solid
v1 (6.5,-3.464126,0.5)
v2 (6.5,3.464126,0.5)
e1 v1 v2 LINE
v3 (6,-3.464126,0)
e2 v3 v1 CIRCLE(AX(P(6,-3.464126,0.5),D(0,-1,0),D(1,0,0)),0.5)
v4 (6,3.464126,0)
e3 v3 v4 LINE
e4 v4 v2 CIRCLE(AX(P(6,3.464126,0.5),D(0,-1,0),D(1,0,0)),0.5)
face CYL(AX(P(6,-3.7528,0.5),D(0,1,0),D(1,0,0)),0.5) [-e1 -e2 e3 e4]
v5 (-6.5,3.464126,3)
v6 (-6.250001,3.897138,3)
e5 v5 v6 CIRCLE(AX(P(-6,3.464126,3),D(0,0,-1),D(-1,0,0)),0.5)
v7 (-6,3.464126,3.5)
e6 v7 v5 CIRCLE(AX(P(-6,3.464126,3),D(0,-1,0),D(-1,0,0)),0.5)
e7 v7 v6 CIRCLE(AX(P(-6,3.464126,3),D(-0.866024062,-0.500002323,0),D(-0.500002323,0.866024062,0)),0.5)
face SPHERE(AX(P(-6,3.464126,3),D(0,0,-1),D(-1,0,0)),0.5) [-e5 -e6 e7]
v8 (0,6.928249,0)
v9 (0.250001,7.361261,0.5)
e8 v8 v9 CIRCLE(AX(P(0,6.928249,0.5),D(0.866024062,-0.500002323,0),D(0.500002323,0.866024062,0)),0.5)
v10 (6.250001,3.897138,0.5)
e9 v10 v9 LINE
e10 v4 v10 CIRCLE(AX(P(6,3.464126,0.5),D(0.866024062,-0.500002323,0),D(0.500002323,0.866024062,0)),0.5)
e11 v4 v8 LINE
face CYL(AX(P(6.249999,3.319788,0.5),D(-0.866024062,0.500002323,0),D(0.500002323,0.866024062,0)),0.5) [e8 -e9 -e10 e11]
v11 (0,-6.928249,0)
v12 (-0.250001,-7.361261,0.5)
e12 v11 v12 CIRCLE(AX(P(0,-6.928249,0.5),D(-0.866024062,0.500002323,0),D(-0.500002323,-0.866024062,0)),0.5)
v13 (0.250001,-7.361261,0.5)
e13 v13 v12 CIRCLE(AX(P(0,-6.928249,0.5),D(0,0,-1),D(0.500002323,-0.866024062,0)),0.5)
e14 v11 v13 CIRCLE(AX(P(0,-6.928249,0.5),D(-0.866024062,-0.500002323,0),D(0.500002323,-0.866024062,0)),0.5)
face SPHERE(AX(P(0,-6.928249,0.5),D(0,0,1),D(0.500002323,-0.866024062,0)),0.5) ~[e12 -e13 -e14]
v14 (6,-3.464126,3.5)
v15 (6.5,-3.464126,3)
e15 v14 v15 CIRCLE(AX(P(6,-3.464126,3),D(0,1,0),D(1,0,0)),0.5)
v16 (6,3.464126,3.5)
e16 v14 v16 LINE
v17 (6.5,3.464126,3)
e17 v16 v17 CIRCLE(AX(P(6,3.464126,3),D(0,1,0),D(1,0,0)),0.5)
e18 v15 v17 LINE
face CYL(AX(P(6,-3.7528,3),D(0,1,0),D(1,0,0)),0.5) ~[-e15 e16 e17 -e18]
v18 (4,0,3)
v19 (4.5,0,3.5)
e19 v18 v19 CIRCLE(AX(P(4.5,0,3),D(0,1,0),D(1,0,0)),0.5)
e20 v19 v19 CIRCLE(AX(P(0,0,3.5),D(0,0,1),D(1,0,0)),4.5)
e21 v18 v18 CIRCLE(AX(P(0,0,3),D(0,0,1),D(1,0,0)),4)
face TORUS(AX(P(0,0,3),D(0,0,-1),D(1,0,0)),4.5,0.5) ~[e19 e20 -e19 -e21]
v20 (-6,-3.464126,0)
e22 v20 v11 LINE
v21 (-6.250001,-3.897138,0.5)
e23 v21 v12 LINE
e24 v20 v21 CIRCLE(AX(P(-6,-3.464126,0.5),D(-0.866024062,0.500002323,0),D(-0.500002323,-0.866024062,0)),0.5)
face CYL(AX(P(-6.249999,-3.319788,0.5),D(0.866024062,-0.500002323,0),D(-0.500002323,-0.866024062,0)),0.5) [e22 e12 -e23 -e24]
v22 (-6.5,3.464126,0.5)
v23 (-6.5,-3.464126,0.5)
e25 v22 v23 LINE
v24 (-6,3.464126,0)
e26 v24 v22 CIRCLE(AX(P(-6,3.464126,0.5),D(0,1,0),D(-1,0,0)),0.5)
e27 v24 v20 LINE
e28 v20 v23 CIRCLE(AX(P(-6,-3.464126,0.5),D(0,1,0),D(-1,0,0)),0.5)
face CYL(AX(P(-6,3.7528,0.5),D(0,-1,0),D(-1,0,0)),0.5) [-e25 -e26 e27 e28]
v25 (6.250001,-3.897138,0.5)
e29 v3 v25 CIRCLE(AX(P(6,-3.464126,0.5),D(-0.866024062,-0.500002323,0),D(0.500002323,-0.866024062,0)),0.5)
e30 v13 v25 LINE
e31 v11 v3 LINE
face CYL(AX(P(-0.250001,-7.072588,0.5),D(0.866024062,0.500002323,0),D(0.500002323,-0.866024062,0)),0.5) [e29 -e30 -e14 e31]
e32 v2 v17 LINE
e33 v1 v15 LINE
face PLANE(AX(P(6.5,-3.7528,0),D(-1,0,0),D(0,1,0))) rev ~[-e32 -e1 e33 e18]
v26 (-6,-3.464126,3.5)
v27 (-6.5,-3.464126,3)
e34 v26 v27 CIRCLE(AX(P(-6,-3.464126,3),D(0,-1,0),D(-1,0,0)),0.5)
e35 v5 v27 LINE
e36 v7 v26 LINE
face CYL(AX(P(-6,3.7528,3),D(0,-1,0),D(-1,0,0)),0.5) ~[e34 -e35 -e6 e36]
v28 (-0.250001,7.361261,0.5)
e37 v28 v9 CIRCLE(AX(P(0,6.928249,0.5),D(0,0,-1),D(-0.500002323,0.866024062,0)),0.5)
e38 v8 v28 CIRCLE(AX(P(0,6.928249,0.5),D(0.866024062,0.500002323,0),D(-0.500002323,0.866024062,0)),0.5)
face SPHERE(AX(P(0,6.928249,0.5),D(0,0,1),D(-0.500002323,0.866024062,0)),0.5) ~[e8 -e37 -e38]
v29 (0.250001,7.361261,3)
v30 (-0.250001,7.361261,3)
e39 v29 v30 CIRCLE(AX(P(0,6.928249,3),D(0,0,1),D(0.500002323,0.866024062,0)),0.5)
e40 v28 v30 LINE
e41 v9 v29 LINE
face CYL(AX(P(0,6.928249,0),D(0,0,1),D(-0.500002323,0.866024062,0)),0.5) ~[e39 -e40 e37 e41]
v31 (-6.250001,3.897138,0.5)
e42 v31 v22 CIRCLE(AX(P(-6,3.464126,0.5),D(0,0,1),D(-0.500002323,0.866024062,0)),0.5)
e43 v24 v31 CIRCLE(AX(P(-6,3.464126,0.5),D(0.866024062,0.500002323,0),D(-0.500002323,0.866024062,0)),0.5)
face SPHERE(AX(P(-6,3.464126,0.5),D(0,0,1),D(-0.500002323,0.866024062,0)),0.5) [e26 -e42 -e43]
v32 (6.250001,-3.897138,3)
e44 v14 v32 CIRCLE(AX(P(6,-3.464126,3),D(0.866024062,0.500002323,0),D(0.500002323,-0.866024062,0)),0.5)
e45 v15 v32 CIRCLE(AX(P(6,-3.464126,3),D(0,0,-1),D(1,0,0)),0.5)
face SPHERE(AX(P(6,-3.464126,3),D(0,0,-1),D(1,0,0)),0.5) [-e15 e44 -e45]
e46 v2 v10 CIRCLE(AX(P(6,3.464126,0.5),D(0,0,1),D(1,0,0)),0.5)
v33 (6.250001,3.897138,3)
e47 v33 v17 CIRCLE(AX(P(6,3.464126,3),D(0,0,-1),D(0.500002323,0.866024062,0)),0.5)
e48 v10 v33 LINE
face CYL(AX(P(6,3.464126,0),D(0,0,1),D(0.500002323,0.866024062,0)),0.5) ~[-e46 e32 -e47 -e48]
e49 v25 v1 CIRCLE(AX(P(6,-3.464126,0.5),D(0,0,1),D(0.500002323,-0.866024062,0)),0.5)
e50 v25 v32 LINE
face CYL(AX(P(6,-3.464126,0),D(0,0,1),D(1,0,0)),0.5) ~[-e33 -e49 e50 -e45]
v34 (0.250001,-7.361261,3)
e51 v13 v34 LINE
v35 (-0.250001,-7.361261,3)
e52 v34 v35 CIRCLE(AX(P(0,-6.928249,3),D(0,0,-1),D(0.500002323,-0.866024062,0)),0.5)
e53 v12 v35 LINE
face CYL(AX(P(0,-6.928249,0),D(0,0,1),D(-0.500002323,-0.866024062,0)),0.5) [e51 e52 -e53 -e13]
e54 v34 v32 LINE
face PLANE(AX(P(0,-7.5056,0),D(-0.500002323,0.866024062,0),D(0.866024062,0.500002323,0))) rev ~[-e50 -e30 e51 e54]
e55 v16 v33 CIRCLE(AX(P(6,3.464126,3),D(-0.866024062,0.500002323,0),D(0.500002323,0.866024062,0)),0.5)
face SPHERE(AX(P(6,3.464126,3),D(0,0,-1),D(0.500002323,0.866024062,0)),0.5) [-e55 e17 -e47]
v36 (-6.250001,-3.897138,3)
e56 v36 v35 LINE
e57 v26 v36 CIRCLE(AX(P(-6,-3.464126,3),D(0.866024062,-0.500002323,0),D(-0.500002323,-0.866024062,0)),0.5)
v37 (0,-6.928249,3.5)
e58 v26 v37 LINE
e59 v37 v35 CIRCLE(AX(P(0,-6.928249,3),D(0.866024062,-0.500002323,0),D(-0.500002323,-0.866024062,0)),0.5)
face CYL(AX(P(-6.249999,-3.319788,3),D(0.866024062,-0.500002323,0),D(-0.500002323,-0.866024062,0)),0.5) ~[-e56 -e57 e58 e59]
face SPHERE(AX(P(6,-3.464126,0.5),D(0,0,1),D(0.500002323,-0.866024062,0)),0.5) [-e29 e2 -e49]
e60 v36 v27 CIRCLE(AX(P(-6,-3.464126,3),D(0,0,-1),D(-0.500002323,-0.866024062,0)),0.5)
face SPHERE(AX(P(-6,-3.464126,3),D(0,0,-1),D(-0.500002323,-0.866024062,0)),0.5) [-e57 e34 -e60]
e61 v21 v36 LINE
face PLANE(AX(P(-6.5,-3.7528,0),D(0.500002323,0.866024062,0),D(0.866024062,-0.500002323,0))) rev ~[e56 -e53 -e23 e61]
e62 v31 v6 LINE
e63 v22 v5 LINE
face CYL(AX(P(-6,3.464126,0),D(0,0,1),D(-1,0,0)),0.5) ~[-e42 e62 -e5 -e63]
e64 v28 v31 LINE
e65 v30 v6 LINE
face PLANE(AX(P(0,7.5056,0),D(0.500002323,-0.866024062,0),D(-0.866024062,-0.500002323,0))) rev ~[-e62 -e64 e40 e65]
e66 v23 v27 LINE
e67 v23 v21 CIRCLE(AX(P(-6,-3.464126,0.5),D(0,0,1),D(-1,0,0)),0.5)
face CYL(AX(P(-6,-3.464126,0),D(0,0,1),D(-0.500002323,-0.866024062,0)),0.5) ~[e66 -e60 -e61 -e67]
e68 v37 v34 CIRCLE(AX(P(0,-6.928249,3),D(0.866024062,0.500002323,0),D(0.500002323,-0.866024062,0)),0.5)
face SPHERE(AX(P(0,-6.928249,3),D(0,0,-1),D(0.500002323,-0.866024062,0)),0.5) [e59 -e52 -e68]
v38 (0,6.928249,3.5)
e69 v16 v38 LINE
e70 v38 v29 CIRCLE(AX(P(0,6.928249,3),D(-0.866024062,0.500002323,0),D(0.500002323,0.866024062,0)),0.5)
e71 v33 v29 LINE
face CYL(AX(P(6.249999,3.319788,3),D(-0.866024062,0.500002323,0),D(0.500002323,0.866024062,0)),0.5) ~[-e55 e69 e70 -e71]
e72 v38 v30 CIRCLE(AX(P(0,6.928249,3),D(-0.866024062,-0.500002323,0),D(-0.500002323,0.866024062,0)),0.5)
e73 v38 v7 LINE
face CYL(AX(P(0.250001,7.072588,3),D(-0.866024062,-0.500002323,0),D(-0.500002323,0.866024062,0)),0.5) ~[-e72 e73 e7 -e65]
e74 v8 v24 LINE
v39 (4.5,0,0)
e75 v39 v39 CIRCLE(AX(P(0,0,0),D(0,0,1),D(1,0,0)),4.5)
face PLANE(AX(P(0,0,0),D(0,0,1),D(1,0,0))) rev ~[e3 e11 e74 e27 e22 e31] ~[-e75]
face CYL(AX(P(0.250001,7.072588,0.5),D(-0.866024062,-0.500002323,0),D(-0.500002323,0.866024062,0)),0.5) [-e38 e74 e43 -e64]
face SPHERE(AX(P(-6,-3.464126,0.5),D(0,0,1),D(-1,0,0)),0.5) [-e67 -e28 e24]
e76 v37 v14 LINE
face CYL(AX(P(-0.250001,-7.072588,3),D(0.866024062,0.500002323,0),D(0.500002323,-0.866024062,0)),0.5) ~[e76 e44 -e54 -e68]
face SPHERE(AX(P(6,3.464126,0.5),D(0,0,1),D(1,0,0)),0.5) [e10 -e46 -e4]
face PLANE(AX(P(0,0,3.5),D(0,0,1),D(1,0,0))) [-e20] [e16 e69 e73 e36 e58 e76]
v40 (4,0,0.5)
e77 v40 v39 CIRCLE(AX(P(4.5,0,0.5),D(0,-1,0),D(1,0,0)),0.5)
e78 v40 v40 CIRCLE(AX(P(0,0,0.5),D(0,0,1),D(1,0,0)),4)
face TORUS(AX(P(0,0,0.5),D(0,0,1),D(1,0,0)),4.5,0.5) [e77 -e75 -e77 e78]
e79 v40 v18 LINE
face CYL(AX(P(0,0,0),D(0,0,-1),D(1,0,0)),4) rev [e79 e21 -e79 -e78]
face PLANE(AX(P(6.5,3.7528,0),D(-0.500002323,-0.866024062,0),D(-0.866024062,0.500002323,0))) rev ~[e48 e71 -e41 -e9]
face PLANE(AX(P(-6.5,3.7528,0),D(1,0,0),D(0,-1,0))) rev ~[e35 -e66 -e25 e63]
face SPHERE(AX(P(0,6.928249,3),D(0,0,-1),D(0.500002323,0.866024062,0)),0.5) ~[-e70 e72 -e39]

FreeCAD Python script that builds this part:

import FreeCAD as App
import Part
import Sketcher
from FreeCAD import Vector
Q = App.Units.Quantity


def add_polygon(sketch, points):
    """Adds a closed chain of lines whose ends are joined by coincident constraints."""
    first, n = sketch.GeometryCount, len(points)
    for a, b in zip(points, points[1:] + points[:1]):
        sketch.addGeometry(Part.LineSegment(App.Vector(*a, 0), App.Vector(*b, 0)), False)
    for i in range(n):
        sketch.addConstraint(Sketcher.Constraint("Coincident", first + i, 2, first + (i + 1) % n, 1))

doc = App.newDocument("Part")
params = doc.addObject("Spreadsheet::Sheet", "Params")
for row, (alias, value) in enumerate([
    ("sketch1_diameter", "8 mm"),
    ("pad1_length", "3.5 mm"),
    ("fillet_radius", "0.5 mm"),
], start=1):
    params.set(f"A{row}", alias)
    params.set(f"B{row}", "=" + value)
    params.setAlias(f"B{row}", alias)

body = doc.addObject("PartDesign::Body", "Body")

# Sketch on XY plane
sketch1 = body.newObject("Sketcher::SketchObject", "Sketch")
sketch1.AttachmentSupport = (doc.getObject("XY_Plane"), [""])
sketch1.MapMode = "FlatFace"
add_polygon(sketch1, [(-6.5, -3.8), (0, -7.5), (6.5, -3.8), (6.5, 3.8), (0, 7.5), (-6.5, 3.8)])  # lines 0-5
sketch1.addGeometry(Part.Circle(Vector(0, 0, 0), Vector(0, 0, 1), 4), False)  # 6
sketch1.addConstraint(Sketcher.Constraint("Vertical", 2))
sketch1.addConstraint(Sketcher.Constraint("Vertical", 5))
sketch1.addConstraint(Sketcher.Constraint("Coincident", 6, 3, -1, 1))
sketch1.addConstraint(Sketcher.Constraint("Symmetric", 0, 2, 3, 2, -1, 1))
sketch1.addConstraint(Sketcher.Constraint("Symmetric", 1, 2, 4, 2, -1, 1))
sketch1.addConstraint(Sketcher.Constraint("PointOnObject", 0, 2, -2))
sketch1.addConstraint(Sketcher.Constraint("Parallel", 0, 3))
sketch1.addConstraint(Sketcher.Constraint("Horizontal", 2, 2, 4, 2))
sketch1.addConstraint(Sketcher.Constraint("Diameter", 6, 8.0))
sketch1.addConstraint(Sketcher.Constraint("DistanceX", 4, 2, 2, 2, 13.0))
sketch1.addConstraint(Sketcher.Constraint("Angle", 0, Q("-30.0002 deg")))
sketch1.addConstraint(Sketcher.Constraint("DistanceY", 2, 1, 2, 2, 7.5056))
sketch1.setExpression("Constraints[14]", "Params.sketch1_diameter")
pad1 = body.newObject("PartDesign::Pad", "Pad")
pad1.Profile = sketch1
pad1.setExpression("Length", "Params.pad1_length")
doc.recompute()

fillet = body.newObject("PartDesign::Fillet", "Fillet")
fillet.Base = (pad1, ["Edge1"])
fillet.UseAllEdges = True
fillet.setExpression("Radius", "Params.fillet_radius")

doc.recompute()
